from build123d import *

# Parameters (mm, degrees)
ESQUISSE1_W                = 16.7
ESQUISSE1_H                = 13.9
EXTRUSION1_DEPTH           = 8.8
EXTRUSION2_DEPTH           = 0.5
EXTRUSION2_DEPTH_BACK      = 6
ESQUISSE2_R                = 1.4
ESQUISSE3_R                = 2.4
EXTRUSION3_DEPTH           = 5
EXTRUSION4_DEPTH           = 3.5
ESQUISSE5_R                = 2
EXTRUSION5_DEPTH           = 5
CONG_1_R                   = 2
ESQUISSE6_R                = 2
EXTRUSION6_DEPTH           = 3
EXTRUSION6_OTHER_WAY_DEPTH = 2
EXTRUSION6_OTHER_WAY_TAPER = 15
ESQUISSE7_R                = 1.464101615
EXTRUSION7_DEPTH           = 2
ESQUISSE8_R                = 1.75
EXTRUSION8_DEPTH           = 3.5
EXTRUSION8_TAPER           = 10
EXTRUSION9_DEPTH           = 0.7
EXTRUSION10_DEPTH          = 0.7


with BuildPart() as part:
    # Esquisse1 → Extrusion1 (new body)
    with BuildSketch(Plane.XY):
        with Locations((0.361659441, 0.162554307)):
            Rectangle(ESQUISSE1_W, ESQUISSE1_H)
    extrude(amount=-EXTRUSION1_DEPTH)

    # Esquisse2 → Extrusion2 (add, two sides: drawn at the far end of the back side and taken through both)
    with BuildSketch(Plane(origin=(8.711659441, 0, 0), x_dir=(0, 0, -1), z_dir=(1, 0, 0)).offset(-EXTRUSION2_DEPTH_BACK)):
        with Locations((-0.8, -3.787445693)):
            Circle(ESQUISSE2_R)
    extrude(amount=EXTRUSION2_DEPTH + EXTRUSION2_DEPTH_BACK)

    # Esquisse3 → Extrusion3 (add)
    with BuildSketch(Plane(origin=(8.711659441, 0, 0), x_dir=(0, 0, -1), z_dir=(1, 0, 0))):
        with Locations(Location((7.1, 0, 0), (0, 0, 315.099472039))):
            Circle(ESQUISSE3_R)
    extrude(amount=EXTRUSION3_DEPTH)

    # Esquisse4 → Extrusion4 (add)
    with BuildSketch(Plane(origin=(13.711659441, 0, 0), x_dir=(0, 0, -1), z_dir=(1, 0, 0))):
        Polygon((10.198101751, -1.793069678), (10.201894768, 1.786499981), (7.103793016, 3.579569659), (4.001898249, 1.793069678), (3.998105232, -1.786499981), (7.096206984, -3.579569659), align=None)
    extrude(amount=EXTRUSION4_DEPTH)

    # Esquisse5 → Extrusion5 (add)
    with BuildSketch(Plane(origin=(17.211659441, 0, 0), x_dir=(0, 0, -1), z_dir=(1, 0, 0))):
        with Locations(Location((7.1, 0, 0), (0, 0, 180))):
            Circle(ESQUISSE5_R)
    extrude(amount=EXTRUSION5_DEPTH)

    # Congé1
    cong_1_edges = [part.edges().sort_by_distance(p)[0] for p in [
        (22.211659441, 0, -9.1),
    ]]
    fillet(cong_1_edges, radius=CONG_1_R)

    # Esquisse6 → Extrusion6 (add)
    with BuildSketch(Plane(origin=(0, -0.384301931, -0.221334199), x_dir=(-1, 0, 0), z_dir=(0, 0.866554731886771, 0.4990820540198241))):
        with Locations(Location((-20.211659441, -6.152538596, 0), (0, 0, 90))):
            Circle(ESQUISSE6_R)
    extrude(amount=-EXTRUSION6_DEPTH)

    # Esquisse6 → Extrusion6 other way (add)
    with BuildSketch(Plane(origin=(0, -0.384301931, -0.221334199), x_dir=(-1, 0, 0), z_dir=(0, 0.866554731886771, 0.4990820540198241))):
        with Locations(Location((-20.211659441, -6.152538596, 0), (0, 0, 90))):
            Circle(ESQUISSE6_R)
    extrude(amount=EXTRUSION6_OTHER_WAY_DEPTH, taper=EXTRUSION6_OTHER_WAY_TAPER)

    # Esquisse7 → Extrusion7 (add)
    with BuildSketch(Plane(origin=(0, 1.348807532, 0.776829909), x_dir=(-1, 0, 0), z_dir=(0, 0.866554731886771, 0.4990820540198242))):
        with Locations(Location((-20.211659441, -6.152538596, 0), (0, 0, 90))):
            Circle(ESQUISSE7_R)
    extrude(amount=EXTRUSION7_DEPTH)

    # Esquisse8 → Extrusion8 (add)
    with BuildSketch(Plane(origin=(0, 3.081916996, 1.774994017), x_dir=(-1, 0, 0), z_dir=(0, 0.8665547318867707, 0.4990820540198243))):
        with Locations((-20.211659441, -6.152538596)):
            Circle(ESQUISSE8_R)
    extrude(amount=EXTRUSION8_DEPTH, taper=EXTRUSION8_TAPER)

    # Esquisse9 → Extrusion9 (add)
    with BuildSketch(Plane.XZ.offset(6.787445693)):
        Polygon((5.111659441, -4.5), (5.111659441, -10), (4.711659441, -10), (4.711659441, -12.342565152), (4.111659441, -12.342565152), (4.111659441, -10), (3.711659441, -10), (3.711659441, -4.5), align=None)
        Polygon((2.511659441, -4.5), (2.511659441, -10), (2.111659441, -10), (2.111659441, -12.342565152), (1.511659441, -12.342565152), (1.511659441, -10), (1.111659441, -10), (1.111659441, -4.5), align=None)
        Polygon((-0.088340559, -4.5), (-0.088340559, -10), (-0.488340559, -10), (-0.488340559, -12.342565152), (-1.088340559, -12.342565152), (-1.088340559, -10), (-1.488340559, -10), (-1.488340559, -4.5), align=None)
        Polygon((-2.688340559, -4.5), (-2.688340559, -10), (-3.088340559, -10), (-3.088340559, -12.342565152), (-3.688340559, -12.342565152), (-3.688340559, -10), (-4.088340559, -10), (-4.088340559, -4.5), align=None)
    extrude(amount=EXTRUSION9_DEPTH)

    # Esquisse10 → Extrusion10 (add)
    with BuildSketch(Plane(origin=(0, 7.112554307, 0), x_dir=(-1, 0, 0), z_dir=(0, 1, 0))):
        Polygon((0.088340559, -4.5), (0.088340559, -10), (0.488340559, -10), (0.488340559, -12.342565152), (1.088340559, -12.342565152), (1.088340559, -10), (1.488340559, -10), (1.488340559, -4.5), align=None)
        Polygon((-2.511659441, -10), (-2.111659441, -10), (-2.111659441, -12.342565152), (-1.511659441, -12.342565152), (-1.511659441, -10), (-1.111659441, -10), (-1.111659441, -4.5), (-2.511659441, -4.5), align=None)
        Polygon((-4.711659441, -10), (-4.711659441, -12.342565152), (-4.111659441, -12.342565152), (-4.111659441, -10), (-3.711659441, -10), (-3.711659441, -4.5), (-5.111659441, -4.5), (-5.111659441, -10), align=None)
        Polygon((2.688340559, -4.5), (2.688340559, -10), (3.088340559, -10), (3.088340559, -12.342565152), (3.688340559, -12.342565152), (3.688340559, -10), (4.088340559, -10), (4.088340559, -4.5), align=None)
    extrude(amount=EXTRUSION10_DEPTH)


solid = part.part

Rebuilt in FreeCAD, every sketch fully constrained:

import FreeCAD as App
import Part
import Sketcher
from FreeCAD import Vector


def edges_at(feature, points):
    """Names of the edges that pass closest to the given points."""
    edges = feature.Shape.Edges
    near = lambda p: min(range(len(edges)), key=lambda i: edges[i].distToShape(Part.Vertex(*p))[0])
    return sorted({f"Edge{near(p) + 1}" for p in points})

doc = App.newDocument("Part")
body = doc.addObject("PartDesign::Body", "Body")

sketch1 = body.newObject("Sketcher::SketchObject", "Sketch")
sketch1.AttachmentSupport = (doc.getObject("XY_Plane"), [""])
sketch1.MapMode = "FlatFace"
sketch1.addGeometry(Part.LineSegment(Vector(-7.988341, 7.112554, 0), Vector(-7.988341, -6.787446, 0)), False)
sketch1.addGeometry(Part.LineSegment(Vector(-7.988341, -6.787446, 0), Vector(8.711659, -6.787446, 0)), False)
sketch1.addGeometry(Part.LineSegment(Vector(8.711659, -6.787446, 0), Vector(8.711659, 7.112554, 0)), False)
sketch1.addGeometry(Part.LineSegment(Vector(8.711659, 7.112554, 0), Vector(-7.988341, 7.112554, 0)), False)
sketch1.addConstraint(Sketcher.Constraint("Coincident", 0, 2, 1, 1))
sketch1.addConstraint(Sketcher.Constraint("Coincident", 1, 2, 2, 1))
sketch1.addConstraint(Sketcher.Constraint("Coincident", 2, 2, 3, 1))
sketch1.addConstraint(Sketcher.Constraint("Coincident", 3, 2, 0, 1))
sketch1.addConstraint(Sketcher.Constraint("Vertical", 0))
sketch1.addConstraint(Sketcher.Constraint("Horizontal", 1))
sketch1.addConstraint(Sketcher.Constraint("Vertical", 2))
sketch1.addConstraint(Sketcher.Constraint("Horizontal", 3))
sketch1.addConstraint(Sketcher.Constraint("DistanceX", 1, 1, 1, 2, 16.7))
sketch1.addConstraint(Sketcher.Constraint("DistanceY", 0, 2, 0, 1, 13.9))
sketch1.addConstraint(Sketcher.Constraint("DistanceX", 0, 2, -1, 1, 7.988341))
sketch1.addConstraint(Sketcher.Constraint("DistanceY", 0, 2, -1, 1, 6.787446))
pad1 = body.newObject("PartDesign::Pad", "Pad")
pad1.Profile = sketch1
pad1.Length = 8.8
pad1.Reversed = True

sketch2 = body.newObject("Sketcher::SketchObject", "Sketch001")
sketch2.AttachmentSupport = (doc.getObject("YZ_Plane"), [""])
sketch2.MapMode = "FlatFace"
sketch2.AttachmentOffset = App.Placement(Vector(0, 0, 8.711659), App.Rotation())
sketch2.addGeometry(Part.Circle(Vector(-3.787446, 0.8, 0), Vector(0, 0, 1), 1.4), False)
sketch2.addConstraint(Sketcher.Constraint("Diameter", 0, 2.8))
sketch2.addConstraint(Sketcher.Constraint("DistanceY", -1, 1, 0, 3, 0.8))
sketch2.addConstraint(Sketcher.Constraint("DistanceX", 0, 3, -1, 1, 3.787446))
pad2 = body.newObject("PartDesign::Pad", "Pad001")
pad2.Profile = sketch2
pad2.Type = "TwoLengths"
pad2.Length = 0.5
pad2.Length2 = 6

sketch3 = body.newObject("Sketcher::SketchObject", "Sketch002")
sketch3.AttachmentSupport = (doc.getObject("YZ_Plane"), [""])
sketch3.MapMode = "FlatFace"
sketch3.AttachmentOffset = App.Placement(Vector(0, 0, 8.711659), App.Rotation())
sketch3.addGeometry(Part.Circle(Vector(0, -7.1, 0), Vector(0, 0, 1), 2.4), False)
sketch3.addConstraint(Sketcher.Constraint("PointOnObject", 0, 3, -2))
sketch3.addConstraint(Sketcher.Constraint("Diameter", 0, 4.8))
sketch3.addConstraint(Sketcher.Constraint("DistanceY", 0, 3, -1, 1, 7.1))
pad3 = body.newObject("PartDesign::Pad", "Pad002")
pad3.Profile = sketch3
pad3.Length = 5

sketch4 = body.newObject("Sketcher::SketchObject", "Sketch003")
sketch4.AttachmentSupport = (doc.getObject("YZ_Plane"), [""])
sketch4.MapMode = "FlatFace"
sketch4.AttachmentOffset = App.Placement(Vector(0, 0, 13.711659), App.Rotation())
sketch4.addGeometry(Part.LineSegment(Vector(-1.79307, -10.198102, 0), Vector(1.7865, -10.201895, 0)), False)
sketch4.addGeometry(Part.LineSegment(Vector(1.7865, -10.201895, 0), Vector(3.57957, -7.103793, 0)), False)
sketch4.addGeometry(Part.LineSegment(Vector(3.57957, -7.103793, 0), Vector(1.79307, -4.001898, 0)), False)
sketch4.addGeometry(Part.LineSegment(Vector(1.79307, -4.001898, 0), Vector(-1.7865, -3.998105, 0)), False)
sketch4.addGeometry(Part.LineSegment(Vector(-1.7865, -3.998105, 0), Vector(-3.57957, -7.096207, 0)), False)
sketch4.addGeometry(Part.LineSegment(Vector(-3.57957, -7.096207, 0), Vector(-1.79307, -10.198102, 0)), False)
sketch4.addConstraint(Sketcher.Constraint("Coincident", 0, 2, 1, 1))
sketch4.addConstraint(Sketcher.Constraint("Coincident", 1, 2, 2, 1))
sketch4.addConstraint(Sketcher.Constraint("Coincident", 2, 2, 3, 1))
sketch4.addConstraint(Sketcher.Constraint("Coincident", 3, 2, 4, 1))
sketch4.addConstraint(Sketcher.Constraint("Coincident", 4, 2, 5, 1))
sketch4.addConstraint(Sketcher.Constraint("Coincident", 5, 2, 0, 1))
sketch4.addConstraint(Sketcher.Constraint("Parallel", 0, 3))
sketch4.addConstraint(Sketcher.Constraint("Parallel", 1, 4))
sketch4.addConstraint(Sketcher.Constraint("Parallel", 2, 5))
sketch4.addConstraint(Sketcher.Constraint("Equal", 0, 1))
sketch4.addConstraint(Sketcher.Constraint("Equal", 1, 2))
sketch4.addConstraint(Sketcher.Constraint("Equal", 2, 3))
sketch4.addConstraint(Sketcher.Constraint("DistanceX", 3, 2, 0, 2, 3.573))
sketch4.addConstraint(Sketcher.Constraint("DistanceX", -1, 1, 0, 2, 1.7865))
sketch4.addConstraint(Sketcher.Constraint("DistanceY", 2, 2, -1, 1, 4.001898))
sketch4.addConstraint(Sketcher.Constraint("DistanceY", 5, 2, -1, 1, 10.198102))
sketch4.addConstraint(Sketcher.Constraint("DistanceY", 0, 2, 1, 2, 3.098102))
sketch4.addConstraint(Sketcher.Constraint("DistanceX", 2, 2, 1, 2, 1.7865))
pad4 = body.newObject("PartDesign::Pad", "Pad003")
pad4.Profile = sketch4
pad4.Length = 3.5

sketch5 = body.newObject("Sketcher::SketchObject", "Sketch004")
sketch5.AttachmentSupport = (doc.getObject("YZ_Plane"), [""])
sketch5.MapMode = "FlatFace"
sketch5.AttachmentOffset = App.Placement(Vector(0, 0, 17.211659), App.Rotation())
sketch5.addGeometry(Part.Circle(Vector(0, -7.1, 0), Vector(0, 0, 1), 2), False)
sketch5.addConstraint(Sketcher.Constraint("PointOnObject", 0, 3, -2))
sketch5.addConstraint(Sketcher.Constraint("Diameter", 0, 4.0))
sketch5.addConstraint(Sketcher.Constraint("DistanceY", 0, 3, -1, 1, 7.1))
pad5 = body.newObject("PartDesign::Pad", "Pad004")
pad5.Profile = sketch5
pad5.Length = 5
doc.recompute()

fillet = body.newObject("PartDesign::Fillet", "Fillet")
fillet.Base = (pad5, edges_at(pad5, [(22.212, 0, -9.1)]))
fillet.Radius = 2

sketch6 = body.newObject("Sketcher::SketchObject", "Sketch005")
sketch6.Placement = App.Placement(Vector(0, -0.384302, -0.221334), App.Rotation(Vector(-1, 0, 0), Vector(0, -0.499082054, 0.866554732), Vector(0, 0.866554732, 0.499082054), "ZXY"))
sketch6.addGeometry(Part.Circle(Vector(-20.211659, -6.152539, 0), Vector(0, 0, 1), 2), False)
sketch6.addConstraint(Sketcher.Constraint("Diameter", 0, 4.0))
sketch6.addConstraint(Sketcher.Constraint("DistanceX", 0, 3, -1, 1, 20.211659))
sketch6.addConstraint(Sketcher.Constraint("DistanceY", 0, 3, -1, 1, 6.152539))
pad6 = body.newObject("PartDesign::Pad", "Pad005")
pad6.Profile = sketch6
pad6.Length = 3
pad6.Reversed = True

sketch7 = body.newObject("Sketcher::SketchObject", "Sketch006")
sketch7.Placement = App.Placement(Vector(0, -0.384302, -0.221334), App.Rotation(Vector(-1, 0, 0), Vector(0, -0.499082054, 0.866554732), Vector(0, 0.866554732, 0.499082054), "ZXY"))
sketch7.addGeometry(Part.Circle(Vector(-20.211659, -6.152539, 0), Vector(0, 0, 1), 2), False)
sketch7.addConstraint(Sketcher.Constraint("Diameter", 0, 4.0))
sketch7.addConstraint(Sketcher.Constraint("DistanceX", 0, 3, -1, 1, 20.211659))
sketch7.addConstraint(Sketcher.Constraint("DistanceY", 0, 3, -1, 1, 6.152539))
pad7 = body.newObject("PartDesign::Pad", "Pad006")
pad7.Profile = sketch7
pad7.Length = 2
pad7.TaperAngle = -15

sketch8 = body.newObject("Sketcher::SketchObject", "Sketch007")
sketch8.Placement = App.Placement(Vector(0, 1.348808, 0.77683), App.Rotation(Vector(-1, 0, 0), Vector(0, -0.499082054, 0.866554732), Vector(0, 0.866554732, 0.499082054), "ZXY"))
sketch8.addGeometry(Part.Circle(Vector(-20.211659, -6.152539, 0), Vector(0, 0, 1), 1.464102), False)
sketch8.addConstraint(Sketcher.Constraint("Diameter", 0, 2.928203))
sketch8.addConstraint(Sketcher.Constraint("DistanceX", 0, 3, -1, 1, 20.211659))
sketch8.addConstraint(Sketcher.Constraint("DistanceY", 0, 3, -1, 1, 6.152539))
pad8 = body.newObject("PartDesign::Pad", "Pad007")
pad8.Profile = sketch8
pad8.Length = 2

sketch9 = body.newObject("Sketcher::SketchObject", "Sketch008")
sketch9.Placement = App.Placement(Vector(0, 3.081917, 1.774994), App.Rotation(Vector(-1, 0, 0), Vector(0, -0.499082054, 0.866554732), Vector(0, 0.866554732, 0.499082054), "ZXY"))
sketch9.addGeometry(Part.Circle(Vector(-20.211659, -6.152539, 0), Vector(0, 0, 1), 1.75), False)
sketch9.addConstraint(Sketcher.Constraint("Diameter", 0, 3.5))
sketch9.addConstraint(Sketcher.Constraint("DistanceX", 0, 3, -1, 1, 20.211659))
sketch9.addConstraint(Sketcher.Constraint("DistanceY", 0, 3, -1, 1, 6.152539))
pad9 = body.newObject("PartDesign::Pad", "Pad008")
pad9.Profile = sketch9
pad9.Length = 3.5
pad9.TaperAngle = -10

sketch10 = body.newObject("Sketcher::SketchObject", "Sketch009")
sketch10.AttachmentSupport = (doc.getObject("XZ_Plane"), [""])
sketch10.MapMode = "FlatFace"
sketch10.AttachmentOffset = App.Placement(Vector(0, 0, 6.787446), App.Rotation())
sketch10.addGeometry(Part.LineSegment(Vector(5.111659, -10, 0), Vector(5.111659, -4.5, 0)), False)
sketch10.addGeometry(Part.LineSegment(Vector(5.111659, -4.5, 0), Vector(3.711659, -4.5, 0)), False)
sketch10.addGeometry(Part.LineSegment(Vector(3.711659, -4.5, 0), Vector(3.711659, -10, 0)), False)
sketch10.addGeometry(Part.LineSegment(Vector(3.711659, -10, 0), Vector(4.111659, -10, 0)), False)
sketch10.addGeometry(Part.LineSegment(Vector(4.111659, -10, 0), Vector(4.111659, -12.342565, 0)), False)
sketch10.addGeometry(Part.LineSegment(Vector(4.111659, -12.342565, 0), Vector(4.711659, -12.342565, 0)), False)
sketch10.addGeometry(Part.LineSegment(Vector(4.711659, -12.342565, 0), Vector(4.711659, -10, 0)), False)
sketch10.addGeometry(Part.LineSegment(Vector(4.711659, -10, 0), Vector(5.111659, -10, 0)), False)
sketch10.addGeometry(Part.LineSegment(Vector(2.511659, -10, 0), Vector(2.511659, -4.5, 0)), False)
sketch10.addGeometry(Part.LineSegment(Vector(2.511659, -4.5, 0), Vector(1.111659, -4.5, 0)), False)
sketch10.addGeometry(Part.LineSegment(Vector(1.111659, -4.5, 0), Vector(1.111659, -10, 0)), False)
sketch10.addGeometry(Part.LineSegment(Vector(1.111659, -10, 0), Vector(1.511659, -10, 0)), False)
sketch10.addGeometry(Part.LineSegment(Vector(1.511659, -10, 0), Vector(1.511659, -12.342565, 0)), False)
sketch10.addGeometry(Part.LineSegment(Vector(1.511659, -12.342565, 0), Vector(2.111659, -12.342565, 0)), False)
sketch10.addGeometry(Part.LineSegment(Vector(2.111659, -12.342565, 0), Vector(2.111659, -10, 0)), False)
sketch10.addGeometry(Part.LineSegment(Vector(2.111659, -10, 0), Vector(2.511659, -10, 0)), False)
sketch10.addGeometry(Part.LineSegment(Vector(-0.088341, -10, 0), Vector(-0.088341, -4.5, 0)), False)
sketch10.addGeometry(Part.LineSegment(Vector(-0.088341, -4.5, 0), Vector(-1.488341, -4.5, 0)), False)
sketch10.addGeometry(Part.LineSegment(Vector(-1.488341, -4.5, 0), Vector(-1.488341, -10, 0)), False)
sketch10.addGeometry(Part.LineSegment(Vector(-1.488341, -10, 0), Vector(-1.088341, -10, 0)), False)
sketch10.addGeometry(Part.LineSegment(Vector(-1.088341, -10, 0), Vector(-1.088341, -12.342565, 0)), False)
sketch10.addGeometry(Part.LineSegment(Vector(-1.088341, -12.342565, 0), Vector(-0.488341, -12.342565, 0)), False)
sketch10.addGeometry(Part.LineSegment(Vector(-0.488341, -12.342565, 0), Vector(-0.488341, -10, 0)), False)
sketch10.addGeometry(Part.LineSegment(Vector(-0.488341, -10, 0), Vector(-0.088341, -10, 0)), False)
sketch10.addGeometry(Part.LineSegment(Vector(-2.688341, -10, 0), Vector(-2.688341, -4.5, 0)), False)
sketch10.addGeometry(Part.LineSegment(Vector(-2.688341, -4.5, 0), Vector(-4.088341, -4.5, 0)), False)
sketch10.addGeometry(Part.LineSegment(Vector(-4.088341, -4.5, 0), Vector(-4.088341, -10, 0)), False)
sketch10.addGeometry(Part.LineSegment(Vector(-4.088341, -10, 0), Vector(-3.688341, -10, 0)), False)
sketch10.addGeometry(Part.LineSegment(Vector(-3.688341, -10, 0), Vector(-3.688341, -12.342565, 0)), False)
sketch10.addGeometry(Part.LineSegment(Vector(-3.688341, -12.342565, 0), Vector(-3.088341, -12.342565, 0)), False)
sketch10.addGeometry(Part.LineSegment(Vector(-3.088341, -12.342565, 0), Vector(-3.088341, -10, 0)), False)
sketch10.addGeometry(Part.LineSegment(Vector(-3.088341, -10, 0), Vector(-2.688341, -10, 0)), False)
sketch10.addConstraint(Sketcher.Constraint("Coincident", 0, 2, 1, 1))
sketch10.addConstraint(Sketcher.Constraint("Coincident", 1, 2, 2, 1))
sketch10.addConstraint(Sketcher.Constraint("Coincident", 2, 2, 3, 1))
sketch10.addConstraint(Sketcher.Constraint("Coincident", 3, 2, 4, 1))
sketch10.addConstraint(Sketcher.Constraint("Coincident", 4, 2, 5, 1))
sketch10.addConstraint(Sketcher.Constraint("Coincident", 5, 2, 6, 1))
sketch10.addConstraint(Sketcher.Constraint("Coincident", 6, 2, 7, 1))
sketch10.addConstraint(Sketcher.Constraint("Coincident", 7, 2, 0, 1))
sketch10.addConstraint(Sketcher.Constraint("Coincident", 8, 2, 9, 1))
sketch10.addConstraint(Sketcher.Constraint("Coincident", 9, 2, 10, 1))
sketch10.addConstraint(Sketcher.Constraint("Coincident", 10, 2, 11, 1))
sketch10.addConstraint(Sketcher.Constraint("Coincident", 11, 2, 12, 1))
sketch10.addConstraint(Sketcher.Constraint("Coincident", 12, 2, 13, 1))
sketch10.addConstraint(Sketcher.Constraint("Coincident", 13, 2, 14, 1))
sketch10.addConstraint(Sketcher.Constraint("Coincident", 14, 2, 15, 1))
sketch10.addConstraint(Sketcher.Constraint("Coincident", 15, 2, 8, 1))
sketch10.addConstraint(Sketcher.Constraint("Coincident", 16, 2, 17, 1))
sketch10.addConstraint(Sketcher.Constraint("Coincident", 17, 2, 18, 1))
sketch10.addConstraint(Sketcher.Constraint("Coincident", 18, 2, 19, 1))
sketch10.addConstraint(Sketcher.Constraint("Coincident", 19, 2, 20, 1))
sketch10.addConstraint(Sketcher.Constraint("Coincident", 20, 2, 21, 1))
sketch10.addConstraint(Sketcher.Constraint("Coincident", 21, 2, 22, 1))
sketch10.addConstraint(Sketcher.Constraint("Coincident", 22, 2, 23, 1))
sketch10.addConstraint(Sketcher.Constraint("Coincident", 23, 2, 16, 1))
sketch10.addConstraint(Sketcher.Constraint("Coincident", 24, 2, 25, 1))
sketch10.addConstraint(Sketcher.Constraint("Coincident", 25, 2, 26, 1))
sketch10.addConstraint(Sketcher.Constraint("Coincident", 26, 2, 27, 1))
sketch10.addConstraint(Sketcher.Constraint("Coincident", 27, 2, 28, 1))
sketch10.addConstraint(Sketcher.Constraint("Coincident", 28, 2, 29, 1))
sketch10.addConstraint(Sketcher.Constraint("Coincident", 29, 2, 30, 1))
sketch10.addConstraint(Sketcher.Constraint("Coincident", 30, 2, 31, 1))
sketch10.addConstraint(Sketcher.Constraint("Coincident", 31, 2, 24, 1))
sketch10.addConstraint(Sketcher.Constraint("Vertical", 0))
sketch10.addConstraint(Sketcher.Constraint("Horizontal", 1))
sketch10.addConstraint(Sketcher.Constraint("Vertical", 2))
sketch10.addConstraint(Sketcher.Constraint("Horizontal", 3))
sketch10.addConstraint(Sketcher.Constraint("Vertical", 4))
sketch10.addConstraint(Sketcher.Constraint("Horizontal", 5))
sketch10.addConstraint(Sketcher.Constraint("Vertical", 6))
sketch10.addConstraint(Sketcher.Constraint("Horizontal", 7))
sketch10.addConstraint(Sketcher.Constraint("Vertical", 8))
sketch10.addConstraint(Sketcher.Constraint("Horizontal", 9))
sketch10.addConstraint(Sketcher.Constraint("Vertical", 10))
sketch10.addConstraint(Sketcher.Constraint("Horizontal", 11))
sketch10.addConstraint(Sketcher.Constraint("Vertical", 12))
sketch10.addConstraint(Sketcher.Constraint("Horizontal", 13))
sketch10.addConstraint(Sketcher.Constraint("Vertical", 14))
sketch10.addConstraint(Sketcher.Constraint("Horizontal", 15))
sketch10.addConstraint(Sketcher.Constraint("Vertical", 16))
sketch10.addConstraint(Sketcher.Constraint("Horizontal", 17))
sketch10.addConstraint(Sketcher.Constraint("Vertical", 18))
sketch10.addConstraint(Sketcher.Constraint("Horizontal", 19))
sketch10.addConstraint(Sketcher.Constraint("Vertical", 20))
sketch10.addConstraint(Sketcher.Constraint("Horizontal", 21))
sketch10.addConstraint(Sketcher.Constraint("Vertical", 22))
sketch10.addConstraint(Sketcher.Constraint("Horizontal", 23))
sketch10.addConstraint(Sketcher.Constraint("Vertical", 24))
sketch10.addConstraint(Sketcher.Constraint("Horizontal", 25))
sketch10.addConstraint(Sketcher.Constraint("Vertical", 26))
sketch10.addConstraint(Sketcher.Constraint("Horizontal", 27))
sketch10.addConstraint(Sketcher.Constraint("Vertical", 28))
sketch10.addConstraint(Sketcher.Constraint("Horizontal", 29))
sketch10.addConstraint(Sketcher.Constraint("Vertical", 30))
sketch10.addConstraint(Sketcher.Constraint("Horizontal", 31))
sketch10.addConstraint(Sketcher.Constraint("Horizontal", 3, 2, 6, 2))
sketch10.addConstraint(Sketcher.Constraint("Horizontal", 1, 2, 8, 2))
sketch10.addConstraint(Sketcher.Constraint("Horizontal", 7, 2, 10, 2))
sketch10.addConstraint(Sketcher.Constraint("Horizontal", 5, 2, 12, 2))
sketch10.addConstraint(Sketcher.Constraint("Horizontal", 11, 2, 14, 2))
sketch10.addConstraint(Sketcher.Constraint("Horizontal", 9, 2, 16, 2))
sketch10.addConstraint(Sketcher.Constraint("Horizontal", 15, 2, 18, 2))
sketch10.addConstraint(Sketcher.Constraint("Horizontal", 13, 2, 20, 2))
sketch10.addConstraint(Sketcher.Constraint("Horizontal", 19, 2, 22, 2))
sketch10.addConstraint(Sketcher.Constraint("Horizontal", 17, 2, 24, 2))
sketch10.addConstraint(Sketcher.Constraint("Horizontal", 23, 2, 26, 2))
sketch10.addConstraint(Sketcher.Constraint("Horizontal", 21, 2, 28, 2))
sketch10.addConstraint(Sketcher.Constraint("Horizontal", 27, 2, 30, 2))
sketch10.addConstraint(Sketcher.Constraint("Equal", 3, 7))
sketch10.addConstraint(Sketcher.Constraint("Equal", 1, 9))
sketch10.addConstraint(Sketcher.Constraint("Equal", 7, 11))
sketch10.addConstraint(Sketcher.Constraint("Equal", 5, 13))
sketch10.addConstraint(Sketcher.Constraint("Equal", 9, 17))
sketch10.addConstraint(Sketcher.Constraint("Equal", 15, 19))
sketch10.addConstraint(Sketcher.Constraint("Equal", 13, 21))
sketch10.addConstraint(Sketcher.Constraint("Equal", 17, 25))
sketch10.addConstraint(Sketcher.Constraint("Equal", 23, 27))
sketch10.addConstraint(Sketcher.Constraint("Equal", 21, 29))
sketch10.addConstraint(Sketcher.Constraint("DistanceX", 1, 2, 1, 1, 1.4))
sketch10.addConstraint(Sketcher.Constraint("DistanceX", 3, 1, 3, 2, 0.4))
sketch10.addConstraint(Sketcher.Constraint("DistanceY", 0, 1, 0, 2, 5.5))
sketch10.addConstraint(Sketcher.Constraint("DistanceY", 2, 2, -1, 1, 10.0))
sketch10.addConstraint(Sketcher.Constraint("DistanceX", 9, 2, 0, 2, 4.0))
sketch10.addConstraint(Sketcher.Constraint("DistanceX", 17, 2, 8, 2, 4.0))
sketch10.addConstraint(Sketcher.Constraint("DistanceX", 25, 2, 16, 2, 4.0))
sketch10.addConstraint(Sketcher.Constraint("DistanceY", 4, 2, 4, 1, 2.342565))
sketch10.addConstraint(Sketcher.Constraint("DistanceX", -1, 1, 0, 2, 5.111659))
pad10 = body.newObject("PartDesign::Pad", "Pad009")
pad10.Profile = sketch10
pad10.Length = 0.7

sketch11 = body.newObject("Sketcher::SketchObject", "Sketch010")
sketch11.AttachmentSupport = (doc.getObject("XZ_Plane"), [""])
sketch11.MapMode = "FlatFace"
sketch11.AttachmentOffset = App.Placement(Vector(0, 0, -7.112554), App.Rotation())
sketch11.addGeometry(Part.LineSegment(Vector(-0.088341, -4.5, 0), Vector(-0.088341, -10, 0)), False)
sketch11.addGeometry(Part.LineSegment(Vector(-0.088341, -10, 0), Vector(-0.488341, -10, 0)), False)
sketch11.addGeometry(Part.LineSegment(Vector(-0.488341, -10, 0), Vector(-0.488341, -12.342565, 0)), False)
sketch11.addGeometry(Part.LineSegment(Vector(-0.488341, -12.342565, 0), Vector(-1.088341, -12.342565, 0)), False)
sketch11.addGeometry(Part.LineSegment(Vector(-1.088341, -12.342565, 0), Vector(-1.088341, -10, 0)), False)
sketch11.addGeometry(Part.LineSegment(Vector(-1.088341, -10, 0), Vector(-1.488341, -10, 0)), False)
sketch11.addGeometry(Part.LineSegment(Vector(-1.488341, -10, 0), Vector(-1.488341, -4.5, 0)), False)
sketch11.addGeometry(Part.LineSegment(Vector(-1.488341, -4.5, 0), Vector(-0.088341, -4.5, 0)), False)
sketch11.addGeometry(Part.LineSegment(Vector(2.511659, -10, 0), Vector(2.111659, -10, 0)), False)
sketch11.addGeometry(Part.LineSegment(Vector(2.111659, -10, 0), Vector(2.111659, -12.342565, 0)), False)
sketch11.addGeometry(Part.LineSegment(Vector(2.111659, -12.342565, 0), Vector(1.511659, -12.342565, 0)), False)
sketch11.addGeometry(Part.LineSegment(Vector(1.511659, -12.342565, 0), Vector(1.511659, -10, 0)), False)
sketch11.addGeometry(Part.LineSegment(Vector(1.511659, -10, 0), Vector(1.111659, -10, 0)), False)
sketch11.addGeometry(Part.LineSegment(Vector(1.111659, -10, 0), Vector(1.111659, -4.5, 0)), False)
sketch11.addGeometry(Part.LineSegment(Vector(1.111659, -4.5, 0), Vector(2.511659, -4.5, 0)), False)
sketch11.addGeometry(Part.LineSegment(Vector(2.511659, -4.5, 0), Vector(2.511659, -10, 0)), False)
sketch11.addGeometry(Part.LineSegment(Vector(4.711659, -10, 0), Vector(4.711659, -12.342565, 0)), False)
sketch11.addGeometry(Part.LineSegment(Vector(4.711659, -12.342565, 0), Vector(4.111659, -12.342565, 0)), False)
sketch11.addGeometry(Part.LineSegment(Vector(4.111659, -12.342565, 0), Vector(4.111659, -10, 0)), False)
sketch11.addGeometry(Part.LineSegment(Vector(4.111659, -10, 0), Vector(3.711659, -10, 0)), False)
sketch11.addGeometry(Part.LineSegment(Vector(3.711659, -10, 0), Vector(3.711659, -4.5, 0)), False)
sketch11.addGeometry(Part.LineSegment(Vector(3.711659, -4.5, 0), Vector(5.111659, -4.5, 0)), False)
sketch11.addGeometry(Part.LineSegment(Vector(5.111659, -4.5, 0), Vector(5.111659, -10, 0)), False)
sketch11.addGeometry(Part.LineSegment(Vector(5.111659, -10, 0), Vector(4.711659, -10, 0)), False)
sketch11.addGeometry(Part.LineSegment(Vector(-2.688341, -4.5, 0), Vector(-2.688341, -10, 0)), False)
sketch11.addGeometry(Part.LineSegment(Vector(-2.688341, -10, 0), Vector(-3.088341, -10, 0)), False)
sketch11.addGeometry(Part.LineSegment(Vector(-3.088341, -10, 0), Vector(-3.088341, -12.342565, 0)), False)
sketch11.addGeometry(Part.LineSegment(Vector(-3.088341, -12.342565, 0), Vector(-3.688341, -12.342565, 0)), False)
sketch11.addGeometry(Part.LineSegment(Vector(-3.688341, -12.342565, 0), Vector(-3.688341, -10, 0)), False)
sketch11.addGeometry(Part.LineSegment(Vector(-3.688341, -10, 0), Vector(-4.088341, -10, 0)), False)
sketch11.addGeometry(Part.LineSegment(Vector(-4.088341, -10, 0), Vector(-4.088341, -4.5, 0)), False)
sketch11.addGeometry(Part.LineSegment(Vector(-4.088341, -4.5, 0), Vector(-2.688341, -4.5, 0)), False)
sketch11.addConstraint(Sketcher.Constraint("Coincident", 0, 2, 1, 1))
sketch11.addConstraint(Sketcher.Constraint("Coincident", 1, 2, 2, 1))
sketch11.addConstraint(Sketcher.Constraint("Coincident", 2, 2, 3, 1))
sketch11.addConstraint(Sketcher.Constraint("Coincident", 3, 2, 4, 1))
sketch11.addConstraint(Sketcher.Constraint("Coincident", 4, 2, 5, 1))
sketch11.addConstraint(Sketcher.Constraint("Coincident", 5, 2, 6, 1))
sketch11.addConstraint(Sketcher.Constraint("Coincident", 6, 2, 7, 1))
sketch11.addConstraint(Sketcher.Constraint("Coincident", 7, 2, 0, 1))
sketch11.addConstraint(Sketcher.Constraint("Coincident", 8, 2, 9, 1))
sketch11.addConstraint(Sketcher.Constraint("Coincident", 9, 2, 10, 1))
sketch11.addConstraint(Sketcher.Constraint("Coincident", 10, 2, 11, 1))
sketch11.addConstraint(Sketcher.Constraint("Coincident", 11, 2, 12, 1))
sketch11.addConstraint(Sketcher.Constraint("Coincident", 12, 2, 13, 1))
sketch11.addConstraint(Sketcher.Constraint("Coincident", 13, 2, 14, 1))
sketch11.addConstraint(Sketcher.Constraint("Coincident", 14, 2, 15, 1))
sketch11.addConstraint(Sketcher.Constraint("Coincident", 15, 2, 8, 1))
sketch11.addConstraint(Sketcher.Constraint("Coincident", 16, 2, 17, 1))
sketch11.addConstraint(Sketcher.Constraint("Coincident", 17, 2, 18, 1))
sketch11.addConstraint(Sketcher.Constraint("Coincident", 18, 2, 19, 1))
sketch11.addConstraint(Sketcher.Constraint("Coincident", 19, 2, 20, 1))
sketch11.addConstraint(Sketcher.Constraint("Coincident", 20, 2, 21, 1))
sketch11.addConstraint(Sketcher.Constraint("Coincident", 21, 2, 22, 1))
sketch11.addConstraint(Sketcher.Constraint("Coincident", 22, 2, 23, 1))
sketch11.addConstraint(Sketcher.Constraint("Coincident", 23, 2, 16, 1))
sketch11.addConstraint(Sketcher.Constraint("Coincident", 24, 2, 25, 1))
sketch11.addConstraint(Sketcher.Constraint("Coincident", 25, 2, 26, 1))
sketch11.addConstraint(Sketcher.Constraint("Coincident", 26, 2, 27, 1))
sketch11.addConstraint(Sketcher.Constraint("Coincident", 27, 2, 28, 1))
sketch11.addConstraint(Sketcher.Constraint("Coincident", 28, 2, 29, 1))
sketch11.addConstraint(Sketcher.Constraint("Coincident", 29, 2, 30, 1))
sketch11.addConstraint(Sketcher.Constraint("Coincident", 30, 2, 31, 1))
sketch11.addConstraint(Sketcher.Constraint("Coincident", 31, 2, 24, 1))
sketch11.addConstraint(Sketcher.Constraint("Vertical", 0))
sketch11.addConstraint(Sketcher.Constraint("Horizontal", 1))
sketch11.addConstraint(Sketcher.Constraint("Vertical", 2))
sketch11.addConstraint(Sketcher.Constraint("Horizontal", 3))
sketch11.addConstraint(Sketcher.Constraint("Vertical", 4))
sketch11.addConstraint(Sketcher.Constraint("Horizontal", 5))
sketch11.addConstraint(Sketcher.Constraint("Vertical", 6))
sketch11.addConstraint(Sketcher.Constraint("Horizontal", 7))
sketch11.addConstraint(Sketcher.Constraint("Horizontal", 8))
sketch11.addConstraint(Sketcher.Constraint("Vertical", 9))
sketch11.addConstraint(Sketcher.Constraint("Horizontal", 10))
sketch11.addConstraint(Sketcher.Constraint("Vertical", 11))
sketch11.addConstraint(Sketcher.Constraint("Horizontal", 12))
sketch11.addConstraint(Sketcher.Constraint("Vertical", 13))
sketch11.addConstraint(Sketcher.Constraint("Horizontal", 14))
sketch11.addConstraint(Sketcher.Constraint("Vertical", 15))
sketch11.addConstraint(Sketcher.Constraint("Vertical", 16))
sketch11.addConstraint(Sketcher.Constraint("Horizontal", 17))
sketch11.addConstraint(Sketcher.Constraint("Vertical", 18))
sketch11.addConstraint(Sketcher.Constraint("Horizontal", 19))
sketch11.addConstraint(Sketcher.Constraint("Vertical", 20))
sketch11.addConstraint(Sketcher.Constraint("Horizontal", 21))
sketch11.addConstraint(Sketcher.Constraint("Vertical", 22))
sketch11.addConstraint(Sketcher.Constraint("Horizontal", 23))
sketch11.addConstraint(Sketcher.Constraint("Vertical", 24))
sketch11.addConstraint(Sketcher.Constraint("Horizontal", 25))
sketch11.addConstraint(Sketcher.Constraint("Vertical", 26))
sketch11.addConstraint(Sketcher.Constraint("Horizontal", 27))
sketch11.addConstraint(Sketcher.Constraint("Vertical", 28))
sketch11.addConstraint(Sketcher.Constraint("Horizontal", 29))
sketch11.addConstraint(Sketcher.Constraint("Vertical", 30))
sketch11.addConstraint(Sketcher.Constraint("Horizontal", 31))
sketch11.addConstraint(Sketcher.Constraint("Horizontal", 1, 2, 4, 2))
sketch11.addConstraint(Sketcher.Constraint("Horizontal", 5, 2, 8, 2))
sketch11.addConstraint(Sketcher.Constraint("Horizontal", 3, 2, 9, 2))
sketch11.addConstraint(Sketcher.Constraint("Horizontal", 8, 2, 11, 2))
sketch11.addConstraint(Sketcher.Constraint("Horizontal", 7, 2, 13, 2))
sketch11.addConstraint(Sketcher.Constraint("Horizontal", 10, 2, 16, 2))
sketch11.addConstraint(Sketcher.Constraint("Horizontal", 15, 2, 18, 2))
sketch11.addConstraint(Sketcher.Constraint("Horizontal", 14, 2, 20, 2))
sketch11.addConstraint(Sketcher.Constraint("Horizontal", 19, 2, 22, 2))
sketch11.addConstraint(Sketcher.Constraint("Horizontal", 23, 2, 24, 2))
sketch11.addConstraint(Sketcher.Constraint("Horizontal", 17, 2, 26, 2))
sketch11.addConstraint(Sketcher.Constraint("Horizontal", 25, 2, 28, 2))
sketch11.addConstraint(Sketcher.Constraint("Horizontal", 21, 2, 30, 2))
sketch11.addConstraint(Sketcher.Constraint("Equal", 1, 5))
sketch11.addConstraint(Sketcher.Constraint("Equal", 5, 8))
sketch11.addConstraint(Sketcher.Constraint("Equal", 3, 10))
sketch11.addConstraint(Sketcher.Constraint("Equal", 8, 12))
sketch11.addConstraint(Sketcher.Constraint("Equal", 10, 17))
sketch11.addConstraint(Sketcher.Constraint("Equal", 12, 19))
sketch11.addConstraint(Sketcher.Constraint("Equal", 14, 21))
sketch11.addConstraint(Sketcher.Constraint("Equal", 23, 25))
sketch11.addConstraint(Sketcher.Constraint("Equal", 17, 27))
sketch11.addConstraint(Sketcher.Constraint("Equal", 25, 29))
sketch11.addConstraint(Sketcher.Constraint("DistanceX", 1, 2, 1, 1, 0.4))
sketch11.addConstraint(Sketcher.Constraint("DistanceX", 3, 2, 3, 1, 0.6))
sketch11.addConstraint(Sketcher.Constraint("DistanceY", 0, 2, 0, 1, 5.5))
sketch11.addConstraint(Sketcher.Constraint("DistanceY", 0, 2, -1, 1, 10.0))
sketch11.addConstraint(Sketcher.Constraint("DistanceX", 2, 2, 10, 2, 2.0))
sketch11.addConstraint(Sketcher.Constraint("DistanceX", 9, 2, 17, 2, 2.0))
sketch11.addConstraint(Sketcher.Constraint("DistanceX", 25, 2, 4, 2, 2.0))
sketch11.addConstraint(Sketcher.Constraint("DistanceY", 2, 2, 2, 1, 2.342565))
sketch11.addConstraint(Sketcher.Constraint("DistanceX", 0, 2, -1, 1, 0.088341))
pad11 = body.newObject("PartDesign::Pad", "Pad010")
pad11.Profile = sketch11
pad11.Length = 0.7
pad11.Reversed = True

doc.recompute()
